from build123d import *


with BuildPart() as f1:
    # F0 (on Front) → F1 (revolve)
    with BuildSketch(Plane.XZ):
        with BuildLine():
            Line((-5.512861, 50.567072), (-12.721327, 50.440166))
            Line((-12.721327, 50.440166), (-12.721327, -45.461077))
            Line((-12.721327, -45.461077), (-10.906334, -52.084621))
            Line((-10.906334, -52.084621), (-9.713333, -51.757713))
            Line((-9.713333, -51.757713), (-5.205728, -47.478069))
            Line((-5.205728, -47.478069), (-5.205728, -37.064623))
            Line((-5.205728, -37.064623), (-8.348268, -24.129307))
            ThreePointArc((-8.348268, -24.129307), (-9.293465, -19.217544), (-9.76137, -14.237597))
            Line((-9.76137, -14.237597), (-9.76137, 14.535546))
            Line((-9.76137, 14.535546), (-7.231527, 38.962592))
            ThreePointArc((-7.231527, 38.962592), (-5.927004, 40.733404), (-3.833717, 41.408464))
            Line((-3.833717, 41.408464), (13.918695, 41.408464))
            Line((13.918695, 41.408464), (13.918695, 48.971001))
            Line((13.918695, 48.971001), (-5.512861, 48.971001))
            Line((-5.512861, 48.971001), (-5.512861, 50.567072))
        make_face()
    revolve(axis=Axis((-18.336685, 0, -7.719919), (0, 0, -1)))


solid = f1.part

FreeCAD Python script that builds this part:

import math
import FreeCAD as App
import Part
import Sketcher

V = App.Vector

doc = App.newDocument("Part")
body = doc.addObject("PartDesign::Body", "Body")

# Sketch on XZ plane
sketch1 = body.newObject("Sketcher::SketchObject", "Sketch")
sketch1.AttachmentSupport = (doc.getObject("XZ_Plane"), [""])
sketch1.MapMode = "FlatFace"
sketch1.addGeometry(Part.LineSegment(V(-5.5, 50.6, 0), V(-12.7, 50.4, 0)), False)
sketch1.addGeometry(Part.LineSegment(V(-12.7, 50.4, 0), V(-12.7, -45.5, 0)), False)
sketch1.addGeometry(Part.LineSegment(V(-12.7, -45.5, 0), V(-10.9, -52.1, 0)), False)
sketch1.addGeometry(Part.LineSegment(V(-10.9, -52.1, 0), V(-9.7, -51.8, 0)), False)
sketch1.addGeometry(Part.LineSegment(V(-9.7, -51.8, 0), V(-5.2, -47.5, 0)), False)
sketch1.addGeometry(Part.LineSegment(V(-5.2, -47.5, 0), V(-5.2, -37.1, 0)), False)
sketch1.addGeometry(Part.LineSegment(V(-5.2, -37.1, 0), V(-8.3, -24.1, 0)), False)
sketch1.addGeometry(Part.ArcOfCircle(Part.Circle(V(42.1, -11.9, 0), V(0, 0, 1), 51.9), math.radians(-177.39), math.radians(-166.34)), False)
sketch1.addGeometry(Part.LineSegment(V(-9.8, -14.2, 0), V(-9.8, 14.5, 0)), False)
sketch1.addGeometry(Part.LineSegment(V(-9.8, 14.5, 0), V(-7.2, 39, 0)), False)
sketch1.addGeometry(Part.ArcOfCircle(Part.Circle(V(-3.8, 37.8, 0), V(0, 0, 1), 3.6), math.radians(90), math.radians(161)), False)
sketch1.addGeometry(Part.LineSegment(V(-3.8, 41.4, 0), V(13.9, 41.4, 0)), False)
sketch1.addGeometry(Part.LineSegment(V(13.9, 41.4, 0), V(13.9, 49, 0)), False)
sketch1.addGeometry(Part.LineSegment(V(13.9, 49, 0), V(-5.5, 49, 0)), False)
sketch1.addGeometry(Part.LineSegment(V(-5.5, 49, 0), V(-5.5, 50.6, 0)), False)
sketch1.addGeometry(Part.LineSegment(V(-18.3, 50.6, 0), V(-18.3, -52.1, 0)), True)  # axis
sketch1.addConstraint(Sketcher.Constraint("Coincident", 0, 2, 1, 1))
sketch1.addConstraint(Sketcher.Constraint("Coincident", 1, 2, 2, 1))
sketch1.addConstraint(Sketcher.Constraint("Coincident", 2, 2, 3, 1))
sketch1.addConstraint(Sketcher.Constraint("Coincident", 3, 2, 4, 1))
sketch1.addConstraint(Sketcher.Constraint("Coincident", 4, 2, 5, 1))
sketch1.addConstraint(Sketcher.Constraint("Coincident", 5, 2, 6, 1))
sketch1.addConstraint(Sketcher.Constraint("Tangent", 6, 2, 7, 2))
sketch1.addConstraint(Sketcher.Constraint("Coincident", 7, 1, 8, 1))
sketch1.addConstraint(Sketcher.Constraint("Coincident", 8, 2, 9, 1))
sketch1.addConstraint(Sketcher.Constraint("Coincident", 9, 2, 10, 2))
sketch1.addConstraint(Sketcher.Constraint("Tangent", 10, 1, 11, 1))
sketch1.addConstraint(Sketcher.Constraint("Coincident", 11, 2, 12, 1))
sketch1.addConstraint(Sketcher.Constraint("Coincident", 12, 2, 13, 1))
sketch1.addConstraint(Sketcher.Constraint("Coincident", 13, 2, 14, 1))
sketch1.addConstraint(Sketcher.Constraint("Coincident", 14, 2, 0, 1))
sketch1.addConstraint(Sketcher.Constraint("Vertical", 1))
sketch1.addConstraint(Sketcher.Constraint("Vertical", 5))
sketch1.addConstraint(Sketcher.Constraint("Vertical", 8))
sketch1.addConstraint(Sketcher.Constraint("Horizontal", 11))
sketch1.addConstraint(Sketcher.Constraint("Vertical", 12))
sketch1.addConstraint(Sketcher.Constraint("Horizontal", 13))
sketch1.addConstraint(Sketcher.Constraint("Vertical", 14))
sketch1.addConstraint(Sketcher.Constraint("Vertical", 15))
sketch1.addConstraint(Sketcher.Constraint("Perpendicular", 2, 3))
sketch1.addConstraint(Sketcher.Constraint("Horizontal", 14, 2, 15, 1))
sketch1.addConstraint(Sketcher.Constraint("Horizontal", 2, 2, 15, 2))
sketch1.addConstraint(Sketcher.Constraint("Radius", 10, 3.583059))
sketch1.addConstraint(Sketcher.Constraint("DistanceY", 2, 2, 5, 2, 15.019998))
sketch1.addConstraint(Sketcher.Constraint("DistanceY", -1, 1, 12, 2, 48.971001))
sketch1.addConstraint(Sketcher.Constraint("Radius", 7, 51.891426))
sketch1.addConstraint(Sketcher.Constraint("DistanceX", 2, 2, 3, 2, 1.193001))
sketch1.addConstraint(Sketcher.Constraint("Distance", 9, 24.557701))
sketch1.addConstraint(Sketcher.Constraint("DistanceX", 11, 1, 11, 2, 17.752412))
sketch1.addConstraint(Sketcher.Constraint("DistanceY", 14, 1, 14, 2, 1.596071))
sketch1.addConstraint(Sketcher.Constraint("DistanceX", 1, 2, 4, 2, 7.515599))
sketch1.addConstraint(Sketcher.Constraint("DistanceX", 0, 2, 9, 2, 5.4898))
sketch1.addConstraint(Sketcher.Constraint("DistanceY", 6, 2, 9, 2, 63.091899))
sketch1.addConstraint(Sketcher.Constraint("DistanceY", 11, 2, 0, 2, 9.031702))
sketch1.addConstraint(Sketcher.Constraint("Distance", 3, 1.23698))
sketch1.addConstraint(Sketcher.Constraint("DistanceX", 13, 2, 13, 1, 19.431556))
sketch1.addConstraint(Sketcher.Constraint("DistanceY", 1, 2, 1, 1, 95.901243))
sketch1.addConstraint(Sketcher.Constraint("DistanceY", 5, 1, 5, 2, 10.413446))
sketch1.addConstraint(Sketcher.Constraint("DistanceY", 8, 1, 8, 2, 28.773143))
sketch1.addConstraint(Sketcher.Constraint("DistanceY", 12, 1, 12, 2, 7.562537))
sketch1.addConstraint(Sketcher.Constraint("DistanceY", 15, 2, 15, 1, 102.651693))
sketch1.addConstraint(Sketcher.Constraint("DistanceX", 7, 1, -1, 1, 9.76137))
sketch1.addConstraint(Sketcher.Constraint("DistanceX", 13, 2, -1, 1, 5.512861))
sketch1.addConstraint(Sketcher.Constraint("DistanceY", 7, 3, 10, 3, 49.70439))
sketch1.addConstraint(Sketcher.Constraint("DistanceX", 15, 2, 2, 2, 7.430351))
revolution = body.newObject("PartDesign::Revolution", "Revolution")
revolution.Profile = sketch1
revolution.ReferenceAxis = (sketch1, ["Axis0"])
revolution.Angle = 360

doc.recompute()
